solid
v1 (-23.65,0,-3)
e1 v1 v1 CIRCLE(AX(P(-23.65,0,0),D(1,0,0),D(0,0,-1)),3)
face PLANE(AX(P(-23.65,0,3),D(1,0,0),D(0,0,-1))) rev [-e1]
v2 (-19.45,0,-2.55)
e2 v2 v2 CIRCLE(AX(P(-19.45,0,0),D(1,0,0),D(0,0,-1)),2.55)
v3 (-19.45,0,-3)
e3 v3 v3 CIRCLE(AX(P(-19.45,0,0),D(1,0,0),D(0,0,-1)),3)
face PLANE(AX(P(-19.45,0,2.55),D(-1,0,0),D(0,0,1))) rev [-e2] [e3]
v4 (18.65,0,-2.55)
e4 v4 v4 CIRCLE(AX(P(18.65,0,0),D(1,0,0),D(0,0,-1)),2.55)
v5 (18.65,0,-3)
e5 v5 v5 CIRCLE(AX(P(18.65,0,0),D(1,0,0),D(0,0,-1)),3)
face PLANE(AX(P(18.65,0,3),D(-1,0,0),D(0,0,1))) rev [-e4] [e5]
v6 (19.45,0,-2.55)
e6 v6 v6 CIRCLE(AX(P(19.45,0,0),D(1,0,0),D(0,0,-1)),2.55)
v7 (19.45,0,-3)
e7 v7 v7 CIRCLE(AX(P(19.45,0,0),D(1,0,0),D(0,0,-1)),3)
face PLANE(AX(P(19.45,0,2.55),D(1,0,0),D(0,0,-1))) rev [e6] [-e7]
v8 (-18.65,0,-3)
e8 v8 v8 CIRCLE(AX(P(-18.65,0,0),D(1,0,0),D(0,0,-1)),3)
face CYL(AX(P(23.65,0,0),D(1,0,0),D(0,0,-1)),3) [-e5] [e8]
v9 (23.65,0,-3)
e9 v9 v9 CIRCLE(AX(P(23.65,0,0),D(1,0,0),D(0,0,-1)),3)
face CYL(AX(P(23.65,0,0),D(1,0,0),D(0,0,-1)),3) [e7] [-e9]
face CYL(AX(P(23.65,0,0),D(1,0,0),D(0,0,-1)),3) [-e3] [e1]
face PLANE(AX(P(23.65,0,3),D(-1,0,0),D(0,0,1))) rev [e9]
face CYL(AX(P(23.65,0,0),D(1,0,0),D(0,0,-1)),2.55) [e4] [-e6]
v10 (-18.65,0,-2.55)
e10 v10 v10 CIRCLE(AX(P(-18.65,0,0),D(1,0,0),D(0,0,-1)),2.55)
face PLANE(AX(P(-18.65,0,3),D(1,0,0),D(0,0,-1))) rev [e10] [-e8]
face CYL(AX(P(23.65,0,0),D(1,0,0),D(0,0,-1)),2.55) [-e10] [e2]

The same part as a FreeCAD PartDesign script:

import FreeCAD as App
import Part
import Sketcher

V = App.Vector
Q = App.Units.Quantity


def add_polygon(sketch, points):
    """Adds a closed chain of lines whose ends are joined by coincident constraints."""
    first, n = sketch.GeometryCount, len(points)
    for a, b in zip(points, points[1:] + points[:1]):
        sketch.addGeometry(Part.LineSegment(App.Vector(*a, 0), App.Vector(*b, 0)), False)
    for i in range(n):
        sketch.addConstraint(Sketcher.Constraint("Coincident", first + i, 2, first + (i + 1) % n, 1))

doc = App.newDocument("Part")
body = doc.addObject("PartDesign::Body", "Body")

# Sketch on XZ plane
sketch1 = doc.addObject("Sketcher::SketchObject", "Sketch")
body.addObject(sketch1)
sketch1.AttachmentSupport = (doc.XZ_Plane, [""])
sketch1.MapMode = "FlatFace"
add_polygon(sketch1, [(-18.65, 3), (18.65, 3), (18.65, 2.55), (19.45, 2.55), (19.45, 3), (23.65, 3), (23.65, 0), (-23.65, 0), (-23.65, 3), (-19.45, 3), (-19.45, 2.55), (-18.65, 2.55)])  # lines 0-11
sketch1.addConstraint([
    Sketcher.Constraint("Horizontal", 0),
    Sketcher.Constraint("Vertical", 1),
    Sketcher.Constraint("Horizontal", 2),
    Sketcher.Constraint("Vertical", 3),
    Sketcher.Constraint("Horizontal", 4),
    Sketcher.Constraint("Vertical", 5),
    Sketcher.Constraint("Horizontal", 6),
    Sketcher.Constraint("Vertical", 7),
    Sketcher.Constraint("Horizontal", 8),
    Sketcher.Constraint("Vertical", 9),
    Sketcher.Constraint("Horizontal", 10),
    Sketcher.Constraint("Vertical", 11),
    Sketcher.Constraint("Symmetric", 5, 2, 6, 2, -1, 1),
    Sketcher.Constraint("Symmetric", 3, 2, 8, 2, -2),
    Sketcher.Constraint("Symmetric", 1, 2, 10, 2, -2),
    Sketcher.Constraint("Horizontal", 0, 2, 3, 2),
    Sketcher.Constraint("DistanceY", 5, 2, 5, 1, Q("3 mm")),
    Sketcher.Constraint("DistanceX", 0, 1, 0, 2, Q("37.3 mm")),
    Sketcher.Constraint("DistanceX", 2, 1, 2, 2, Q("0.8 mm")),
    Sketcher.Constraint("DistanceX", 4, 1, 4, 2, Q("4.2 mm")),
    Sketcher.Constraint("DistanceY", 1, 2, 1, 1, Q("0.45 mm")),
])
revolution = doc.addObject("PartDesign::Revolution", "Revolution")
body.addObject(revolution)
revolution.Profile = sketch1
revolution.ReferenceAxis = (sketch1, ["H_Axis"])
revolution.Angle = 360

doc.recompute()
